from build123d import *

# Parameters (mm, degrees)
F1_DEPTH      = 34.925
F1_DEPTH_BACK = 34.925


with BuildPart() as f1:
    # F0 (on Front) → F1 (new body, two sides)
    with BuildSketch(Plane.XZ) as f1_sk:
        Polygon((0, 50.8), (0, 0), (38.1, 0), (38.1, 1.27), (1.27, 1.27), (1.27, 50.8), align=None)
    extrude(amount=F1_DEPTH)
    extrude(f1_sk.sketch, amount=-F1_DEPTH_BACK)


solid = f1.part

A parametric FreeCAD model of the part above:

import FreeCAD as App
import Part
import Sketcher
Q = App.Units.Quantity


def add_polygon(sketch, points):
    """Adds a closed chain of lines whose ends are joined by coincident constraints."""
    first, n = sketch.GeometryCount, len(points)
    for a, b in zip(points, points[1:] + points[:1]):
        sketch.addGeometry(Part.LineSegment(App.Vector(*a, 0), App.Vector(*b, 0)), False)
    for i in range(n):
        sketch.addConstraint(Sketcher.Constraint("Coincident", first + i, 2, first + (i + 1) % n, 1))

doc = App.newDocument("Part")
body = doc.addObject("PartDesign::Body", "Body")

# Sketch on XZ plane
sketch1 = doc.addObject("Sketcher::SketchObject", "Sketch")
body.addObject(sketch1)
sketch1.AttachmentSupport = (doc.XZ_Plane, [""])
sketch1.MapMode = "FlatFace"
add_polygon(sketch1, [(0, 50.8), (0, 0), (38.1, 0), (38.1, 1.27), (1.27, 1.27), (1.27, 50.8)])  # lines 0-5
sketch1.addConstraint([
    Sketcher.Constraint("Vertical", 0),
    Sketcher.Constraint("Horizontal", 1),
    Sketcher.Constraint("Vertical", 2),
    Sketcher.Constraint("Horizontal", 3),
    Sketcher.Constraint("Vertical", 4),
    Sketcher.Constraint("Horizontal", 5),
    Sketcher.Constraint("Coincident", 0, 2, -1, 1),
    Sketcher.Constraint("Equal", 5, 2),
    Sketcher.Constraint("DistanceY", 0, 2, 0, 1, Q("2 in")),
    Sketcher.Constraint("DistanceX", 1, 1, 1, 2, Q("1.5 in")),
    Sketcher.Constraint("DistanceX", 3, 2, 3, 1, Q("1.45 in")),
])
pad1 = doc.addObject("PartDesign::Pad", "Pad")
body.addObject(pad1)
pad1.Profile = sketch1
pad1.Type = "TwoLengths"
pad1.Length = Q("1.375 in")
pad1.Length2 = Q("1.375 in")

doc.recompute()
